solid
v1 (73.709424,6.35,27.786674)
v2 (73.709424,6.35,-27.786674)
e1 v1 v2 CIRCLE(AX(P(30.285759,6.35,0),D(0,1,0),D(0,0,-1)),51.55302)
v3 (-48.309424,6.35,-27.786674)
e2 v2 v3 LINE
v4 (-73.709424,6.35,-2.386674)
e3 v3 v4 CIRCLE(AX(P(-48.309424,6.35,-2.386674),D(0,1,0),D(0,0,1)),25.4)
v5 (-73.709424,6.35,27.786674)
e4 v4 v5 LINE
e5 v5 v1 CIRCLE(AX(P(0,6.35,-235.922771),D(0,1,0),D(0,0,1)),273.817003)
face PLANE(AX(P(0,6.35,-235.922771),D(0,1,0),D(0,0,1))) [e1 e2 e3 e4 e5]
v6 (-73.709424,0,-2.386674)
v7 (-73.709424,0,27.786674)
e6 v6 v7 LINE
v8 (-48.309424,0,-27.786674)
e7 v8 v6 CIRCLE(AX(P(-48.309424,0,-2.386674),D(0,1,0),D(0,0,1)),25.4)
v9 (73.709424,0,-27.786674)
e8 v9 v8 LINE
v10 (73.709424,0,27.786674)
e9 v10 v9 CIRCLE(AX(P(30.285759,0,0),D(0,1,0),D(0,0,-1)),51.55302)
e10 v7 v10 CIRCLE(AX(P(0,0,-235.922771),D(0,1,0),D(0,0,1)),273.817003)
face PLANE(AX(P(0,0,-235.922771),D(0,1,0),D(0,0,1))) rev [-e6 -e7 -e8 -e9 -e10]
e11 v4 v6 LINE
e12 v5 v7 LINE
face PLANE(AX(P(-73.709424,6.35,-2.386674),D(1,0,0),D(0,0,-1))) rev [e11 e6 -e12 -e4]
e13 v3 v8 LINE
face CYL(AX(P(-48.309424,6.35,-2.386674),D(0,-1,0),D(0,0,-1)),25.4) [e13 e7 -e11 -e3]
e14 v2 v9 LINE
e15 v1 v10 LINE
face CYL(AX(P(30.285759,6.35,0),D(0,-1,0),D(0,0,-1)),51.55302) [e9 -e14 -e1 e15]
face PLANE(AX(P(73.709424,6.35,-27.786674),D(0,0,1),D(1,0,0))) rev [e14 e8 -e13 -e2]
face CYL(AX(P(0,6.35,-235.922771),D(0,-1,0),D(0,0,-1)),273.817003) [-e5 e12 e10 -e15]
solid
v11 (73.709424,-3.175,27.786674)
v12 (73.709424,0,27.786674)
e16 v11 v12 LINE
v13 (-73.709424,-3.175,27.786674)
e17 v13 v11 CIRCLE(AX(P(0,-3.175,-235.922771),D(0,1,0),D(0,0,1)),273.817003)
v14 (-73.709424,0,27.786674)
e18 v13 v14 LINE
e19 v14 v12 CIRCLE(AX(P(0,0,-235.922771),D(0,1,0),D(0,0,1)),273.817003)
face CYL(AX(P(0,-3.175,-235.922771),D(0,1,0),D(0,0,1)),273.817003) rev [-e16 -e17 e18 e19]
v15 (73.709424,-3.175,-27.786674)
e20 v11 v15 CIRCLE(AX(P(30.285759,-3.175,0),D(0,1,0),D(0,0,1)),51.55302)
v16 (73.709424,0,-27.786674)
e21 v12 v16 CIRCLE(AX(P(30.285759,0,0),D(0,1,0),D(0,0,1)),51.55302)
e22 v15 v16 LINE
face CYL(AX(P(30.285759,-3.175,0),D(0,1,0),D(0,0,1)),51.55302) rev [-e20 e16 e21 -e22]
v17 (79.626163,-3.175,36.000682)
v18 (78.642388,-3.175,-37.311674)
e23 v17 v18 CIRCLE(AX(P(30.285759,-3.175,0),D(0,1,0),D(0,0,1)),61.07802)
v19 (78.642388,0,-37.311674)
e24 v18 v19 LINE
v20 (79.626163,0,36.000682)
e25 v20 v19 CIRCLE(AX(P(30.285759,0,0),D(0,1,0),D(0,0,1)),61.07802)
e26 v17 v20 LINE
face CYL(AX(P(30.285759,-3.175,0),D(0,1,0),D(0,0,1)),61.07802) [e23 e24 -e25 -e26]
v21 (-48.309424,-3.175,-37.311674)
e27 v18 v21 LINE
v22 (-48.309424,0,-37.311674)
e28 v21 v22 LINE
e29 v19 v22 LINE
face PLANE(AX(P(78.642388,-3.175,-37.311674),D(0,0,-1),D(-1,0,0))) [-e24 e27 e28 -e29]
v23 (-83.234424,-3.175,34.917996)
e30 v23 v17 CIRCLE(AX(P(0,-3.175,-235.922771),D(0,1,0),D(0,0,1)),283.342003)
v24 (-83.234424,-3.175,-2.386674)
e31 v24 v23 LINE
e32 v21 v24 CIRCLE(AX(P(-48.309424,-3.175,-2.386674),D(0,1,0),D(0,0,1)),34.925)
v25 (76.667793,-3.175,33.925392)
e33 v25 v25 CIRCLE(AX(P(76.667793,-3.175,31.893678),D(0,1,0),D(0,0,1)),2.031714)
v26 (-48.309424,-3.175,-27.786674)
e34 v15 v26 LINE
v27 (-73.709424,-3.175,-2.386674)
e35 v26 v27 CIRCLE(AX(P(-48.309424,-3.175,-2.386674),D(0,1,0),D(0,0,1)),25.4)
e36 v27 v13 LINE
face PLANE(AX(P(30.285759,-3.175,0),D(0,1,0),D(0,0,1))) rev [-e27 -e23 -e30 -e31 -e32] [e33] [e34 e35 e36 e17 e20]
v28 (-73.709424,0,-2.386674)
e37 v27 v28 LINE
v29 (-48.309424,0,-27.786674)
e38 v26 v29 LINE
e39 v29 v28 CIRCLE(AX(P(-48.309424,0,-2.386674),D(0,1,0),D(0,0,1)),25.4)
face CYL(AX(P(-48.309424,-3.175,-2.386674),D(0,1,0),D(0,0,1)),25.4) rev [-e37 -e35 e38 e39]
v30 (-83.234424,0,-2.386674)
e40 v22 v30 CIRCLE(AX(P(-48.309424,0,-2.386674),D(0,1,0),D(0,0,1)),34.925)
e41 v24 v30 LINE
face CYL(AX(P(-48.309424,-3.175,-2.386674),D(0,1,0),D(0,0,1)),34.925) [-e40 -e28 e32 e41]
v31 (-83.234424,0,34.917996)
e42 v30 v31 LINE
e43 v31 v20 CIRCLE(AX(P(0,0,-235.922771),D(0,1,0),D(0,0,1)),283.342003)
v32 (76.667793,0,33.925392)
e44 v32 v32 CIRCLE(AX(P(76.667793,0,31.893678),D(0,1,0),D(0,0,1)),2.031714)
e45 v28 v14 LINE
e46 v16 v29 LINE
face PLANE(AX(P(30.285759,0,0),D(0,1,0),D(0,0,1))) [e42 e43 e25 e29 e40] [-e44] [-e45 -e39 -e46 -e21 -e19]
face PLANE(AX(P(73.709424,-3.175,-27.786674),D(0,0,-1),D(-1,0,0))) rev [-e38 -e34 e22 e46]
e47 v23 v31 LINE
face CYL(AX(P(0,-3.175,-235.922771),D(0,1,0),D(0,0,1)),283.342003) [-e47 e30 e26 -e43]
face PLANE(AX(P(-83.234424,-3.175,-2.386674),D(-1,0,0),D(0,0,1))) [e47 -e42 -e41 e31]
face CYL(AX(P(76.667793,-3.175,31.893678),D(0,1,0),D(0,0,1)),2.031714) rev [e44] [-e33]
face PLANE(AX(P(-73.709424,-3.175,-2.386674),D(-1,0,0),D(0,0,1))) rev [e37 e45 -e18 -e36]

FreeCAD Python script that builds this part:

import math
import FreeCAD as App
import Part
import Sketcher

V = App.Vector
Q = App.Units.Quantity

doc = App.newDocument("Part")
body = doc.addObject("PartDesign::Body", "Body")

sketch1 = doc.addObject("Sketcher::SketchObject", "Sketch")
body.addObject(sketch1)
sketch1.AttachmentSupport = (doc.XZ_Plane, [""])
sketch1.MapMode = "FlatFace"
sketch1.addGeometry([
    Part.LineSegment(V(74, -28, 0), V(-48, -28, 0)),
    Part.ArcOfCircle(Part.Circle(V(-48, -2, 0), V(0, 0, 1), 25), math.radians(180), math.radians(270)),
    Part.LineSegment(V(-74, -2, 0), V(-74, 28, 0)),
    Part.ArcOfCircle(Part.Circle(V(0, -236, 0), V(0, 0, 1), 274), math.radians(74), math.radians(106)),
    Part.ArcOfCircle(Part.Circle(V(30, 0, 0), V(0, 0, 1), 52), math.radians(-33), math.radians(33)),
], False)
sketch1.addConstraint([
    Sketcher.Constraint("Tangent", 0, 2, 1, 2),
    Sketcher.Constraint("Tangent", 1, 1, 2, 1),
    Sketcher.Constraint("Coincident", 2, 2, 3, 2),
    Sketcher.Constraint("Coincident", 3, 1, 4, 2),
    Sketcher.Constraint("Coincident", 4, 1, 0, 1),
    Sketcher.Constraint("Horizontal", 0),
    Sketcher.Constraint("Vertical", 2),
    Sketcher.Constraint("Symmetric", 2, 2, 4, 1, -1, 1),
    Sketcher.Constraint("Symmetric", 2, 2, 3, 1, -2),
    Sketcher.Constraint("Radius", 1, Q("1 in")),
    Sketcher.Constraint("Radius", 4, Q("51.55302 mm")),
    Sketcher.Constraint("Radius", 3, Q("273.817003 mm")),
    Sketcher.Constraint("DistanceY", 2, 1, 2, 2, Q("30.173349 mm")),
    Sketcher.Constraint("DistanceX", 0, 2, 0, 1, Q("122.018847 mm")),
])
pad1 = doc.addObject("PartDesign::Pad", "Pad")
body.addObject(pad1)
pad1.Profile = sketch1
pad1.Length = Q("0.25 in")
pad1.Reversed = True
body2 = doc.addObject("PartDesign::Body", "Body001")

sketch2 = doc.addObject("Sketcher::SketchObject", "Sketch001")
body2.addObject(sketch2)
sketch2.AttachmentSupport = (doc.getObject("XZ_Plane001"), [""])
sketch2.MapMode = "FlatFace"
sketch2.AttachmentOffset = App.Placement(V(0, 0, 0.125 * 25.4), App.Rotation())
sketch2.addGeometry([
    Part.LineSegment(V(79, -37, 0), V(-48, -37, 0)),
    Part.ArcOfCircle(Part.Circle(V(-48, -2, 0), V(0, 0, 1), 35), math.radians(180), math.radians(270)),
    Part.LineSegment(V(-83, -2, 0), V(-83, 35, 0)),
    Part.ArcOfCircle(Part.Circle(V(0, -236, 0), V(0, 0, 1), 283), math.radians(74), math.radians(107)),
    Part.ArcOfCircle(Part.Circle(V(30, 0, 0), V(0, 0, 1), 61), math.radians(-38), math.radians(36)),
    Part.LineSegment(V(-48, -28, 0), V(74, -28, 0)),
    Part.ArcOfCircle(Part.Circle(V(30, 0, 0), V(0, 0, 1), 52), math.radians(-33), math.radians(33)),
    Part.ArcOfCircle(Part.Circle(V(0, -236, 0), V(0, 0, 1), 274), math.radians(74), math.radians(106)),
    Part.LineSegment(V(-74, 28, 0), V(-74, -2, 0)),
    Part.ArcOfCircle(Part.Circle(V(-48, -2, 0), V(0, 0, 1), 25), math.radians(180), math.radians(270)),
], False)
sketch2.addConstraint([
    Sketcher.Constraint("Tangent", 0, 2, 1, 2),
    Sketcher.Constraint("Tangent", 1, 1, 2, 1),
    Sketcher.Constraint("Coincident", 2, 2, 3, 2),
    Sketcher.Constraint("Coincident", 3, 1, 4, 2),
    Sketcher.Constraint("Coincident", 4, 1, 0, 1),
    Sketcher.Constraint("Coincident", 5, 2, 6, 1),
    Sketcher.Constraint("Coincident", 6, 2, 7, 1),
    Sketcher.Constraint("Coincident", 7, 2, 8, 1),
    Sketcher.Constraint("Tangent", 8, 2, 9, 1),
    Sketcher.Constraint("Tangent", 9, 2, 5, 1),
    Sketcher.Constraint("Horizontal", 0),
    Sketcher.Constraint("Vertical", 2),
    Sketcher.Constraint("Horizontal", 5),
    Sketcher.Constraint("Vertical", 8),
    Sketcher.Constraint("Coincident", 6, 3, 4, 3),
    Sketcher.Constraint("Coincident", 7, 3, 3, 3),
    Sketcher.Constraint("Coincident", 9, 3, 1, 3),
    Sketcher.Constraint("Symmetric", 5, 2, 7, 2, -1, 1),
    Sketcher.Constraint("Symmetric", 6, 2, 7, 2, -2),
    Sketcher.Constraint("Radius", 9, Q("1 in")),
    Sketcher.Constraint("Radius", 1, Q("1.375 in")),
    Sketcher.Constraint("Radius", 4, Q("61.07802 mm")),
    Sketcher.Constraint("Radius", 6, Q("51.55302 mm")),
    Sketcher.Constraint("Radius", 3, Q("283.342003 mm")),
    Sketcher.Constraint("Radius", 7, Q("273.817003 mm")),
    Sketcher.Constraint("DistanceX", 0, 2, 0, 1, Q("126.951812 mm")),
    Sketcher.Constraint("DistanceY", 2, 1, 2, 2, Q("37.30467 mm")),
])
pad2 = doc.addObject("PartDesign::Pad", "Pad001")
body2.addObject(pad2)
pad2.Profile = sketch2
pad2.Length = Q("0.125 in")
pad2.Reversed = True

sketch3 = doc.addObject("Sketcher::SketchObject", "Sketch002")
body2.addObject(sketch3)
sketch3.AttachmentSupport = (doc.getObject("XZ_Plane001"), [""])
sketch3.MapMode = "FlatFace"
sketch3.addGeometry(Part.Circle(V(76.7, 31.9, 0), V(0, 0, 1), 2), False)
sketch3.addConstraint([
    Sketcher.Constraint("Diameter", 0, Q("4.063427 mm")),
    Sketcher.Constraint("DistanceY", -1, 1, 0, 3, Q("31.893678 mm")),
    Sketcher.Constraint("DistanceX", -1, 1, 0, 3, Q("76.667793 mm")),
])
pocket1 = doc.addObject("PartDesign::Pocket", "Pocket")
body2.addObject(pocket1)
pocket1.Profile = sketch3
pocket1.Length = Q("0.125 in")
pocket1.Reversed = True

doc.recompute()
